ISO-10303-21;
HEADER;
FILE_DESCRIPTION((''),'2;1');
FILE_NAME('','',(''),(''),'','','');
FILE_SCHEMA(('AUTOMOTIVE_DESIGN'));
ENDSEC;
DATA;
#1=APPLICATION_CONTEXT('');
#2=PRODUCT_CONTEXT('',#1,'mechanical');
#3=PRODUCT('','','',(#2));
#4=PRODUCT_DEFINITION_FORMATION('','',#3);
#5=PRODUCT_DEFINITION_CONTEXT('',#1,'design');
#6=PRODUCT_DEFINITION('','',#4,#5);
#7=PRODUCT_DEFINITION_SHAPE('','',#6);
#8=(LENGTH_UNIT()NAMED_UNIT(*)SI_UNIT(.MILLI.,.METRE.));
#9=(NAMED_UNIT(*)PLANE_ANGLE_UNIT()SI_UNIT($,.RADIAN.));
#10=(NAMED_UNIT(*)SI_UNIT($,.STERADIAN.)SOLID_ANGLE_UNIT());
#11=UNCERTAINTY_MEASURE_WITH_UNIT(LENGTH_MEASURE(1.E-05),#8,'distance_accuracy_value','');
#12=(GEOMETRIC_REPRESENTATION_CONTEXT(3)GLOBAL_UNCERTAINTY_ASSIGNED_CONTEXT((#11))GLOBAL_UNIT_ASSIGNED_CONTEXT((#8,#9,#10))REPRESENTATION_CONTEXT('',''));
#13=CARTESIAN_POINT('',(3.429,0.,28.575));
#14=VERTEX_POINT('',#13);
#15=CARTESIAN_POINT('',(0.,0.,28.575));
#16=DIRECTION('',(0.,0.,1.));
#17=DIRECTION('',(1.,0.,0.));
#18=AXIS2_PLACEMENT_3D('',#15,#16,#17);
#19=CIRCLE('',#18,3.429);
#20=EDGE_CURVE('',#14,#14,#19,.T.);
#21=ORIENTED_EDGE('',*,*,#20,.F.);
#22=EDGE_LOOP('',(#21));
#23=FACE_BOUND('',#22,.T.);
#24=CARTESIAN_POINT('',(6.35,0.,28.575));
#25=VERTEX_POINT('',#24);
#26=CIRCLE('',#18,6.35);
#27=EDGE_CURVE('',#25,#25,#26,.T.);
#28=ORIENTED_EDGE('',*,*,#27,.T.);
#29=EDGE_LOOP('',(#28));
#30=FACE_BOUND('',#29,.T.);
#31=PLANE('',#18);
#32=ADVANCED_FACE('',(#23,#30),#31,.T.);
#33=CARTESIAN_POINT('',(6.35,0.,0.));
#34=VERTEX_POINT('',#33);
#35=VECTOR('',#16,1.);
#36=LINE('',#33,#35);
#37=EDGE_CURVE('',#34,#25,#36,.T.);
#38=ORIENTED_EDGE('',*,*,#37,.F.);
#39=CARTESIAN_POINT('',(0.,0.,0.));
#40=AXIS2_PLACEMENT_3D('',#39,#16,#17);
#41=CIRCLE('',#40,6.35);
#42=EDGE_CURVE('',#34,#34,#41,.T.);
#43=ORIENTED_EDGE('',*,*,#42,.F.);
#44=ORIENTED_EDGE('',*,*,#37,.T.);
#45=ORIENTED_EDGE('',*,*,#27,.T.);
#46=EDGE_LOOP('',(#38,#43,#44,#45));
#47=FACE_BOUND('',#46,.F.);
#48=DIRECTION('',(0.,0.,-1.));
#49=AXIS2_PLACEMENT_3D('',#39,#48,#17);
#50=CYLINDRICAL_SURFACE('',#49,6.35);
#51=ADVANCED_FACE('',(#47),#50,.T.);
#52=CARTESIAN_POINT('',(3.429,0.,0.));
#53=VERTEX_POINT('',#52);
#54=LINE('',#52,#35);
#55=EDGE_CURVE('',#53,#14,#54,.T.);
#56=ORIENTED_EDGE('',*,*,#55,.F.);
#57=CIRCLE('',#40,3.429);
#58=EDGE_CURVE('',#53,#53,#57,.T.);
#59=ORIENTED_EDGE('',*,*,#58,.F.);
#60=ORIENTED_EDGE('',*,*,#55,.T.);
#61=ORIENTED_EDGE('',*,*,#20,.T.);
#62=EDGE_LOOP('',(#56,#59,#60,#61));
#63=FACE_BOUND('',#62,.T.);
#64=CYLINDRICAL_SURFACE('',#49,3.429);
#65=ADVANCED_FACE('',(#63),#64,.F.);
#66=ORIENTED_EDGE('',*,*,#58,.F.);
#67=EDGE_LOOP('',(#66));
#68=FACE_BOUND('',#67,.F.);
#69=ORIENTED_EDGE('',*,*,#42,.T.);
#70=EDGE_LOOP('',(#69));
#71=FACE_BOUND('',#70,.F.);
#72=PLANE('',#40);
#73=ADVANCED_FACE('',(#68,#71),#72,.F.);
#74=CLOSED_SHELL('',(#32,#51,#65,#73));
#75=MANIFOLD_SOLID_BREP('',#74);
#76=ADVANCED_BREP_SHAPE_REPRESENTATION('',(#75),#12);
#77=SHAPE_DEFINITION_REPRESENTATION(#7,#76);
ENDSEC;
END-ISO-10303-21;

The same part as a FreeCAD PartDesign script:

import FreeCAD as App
import Part
import Sketcher

V = App.Vector
Q = App.Units.Quantity

doc = App.newDocument("Part")
body = doc.addObject("PartDesign::Body", "Body")

# Sketch on XY plane
sketch1 = body.newObject("Sketcher::SketchObject", "Sketch")
sketch1.AttachmentSupport = (doc.getObject("XY_Plane"), [""])
sketch1.MapMode = "FlatFace"
sketch1.addGeometry(Part.Circle(V(0, 0, 0), V(0, 0, 1), 6.3), False)
sketch1.addGeometry(Part.Circle(V(0, 0, 0), V(0, 0, 1), 3.4), False)
sketch1.addConstraint(Sketcher.Constraint("Coincident", 0, 3, -1, 1))
sketch1.addConstraint(Sketcher.Constraint("Coincident", 1, 3, -1, 1))
sketch1.addConstraint(Sketcher.Constraint("Diameter", 0, Q("0.5 in")))
sketch1.addConstraint(Sketcher.Constraint("Diameter", 1, Q("0.27 in")))
pad1 = body.newObject("PartDesign::Pad", "Pad")
pad1.Profile = sketch1
pad1.Length = Q("1.125 in")

doc.recompute()
